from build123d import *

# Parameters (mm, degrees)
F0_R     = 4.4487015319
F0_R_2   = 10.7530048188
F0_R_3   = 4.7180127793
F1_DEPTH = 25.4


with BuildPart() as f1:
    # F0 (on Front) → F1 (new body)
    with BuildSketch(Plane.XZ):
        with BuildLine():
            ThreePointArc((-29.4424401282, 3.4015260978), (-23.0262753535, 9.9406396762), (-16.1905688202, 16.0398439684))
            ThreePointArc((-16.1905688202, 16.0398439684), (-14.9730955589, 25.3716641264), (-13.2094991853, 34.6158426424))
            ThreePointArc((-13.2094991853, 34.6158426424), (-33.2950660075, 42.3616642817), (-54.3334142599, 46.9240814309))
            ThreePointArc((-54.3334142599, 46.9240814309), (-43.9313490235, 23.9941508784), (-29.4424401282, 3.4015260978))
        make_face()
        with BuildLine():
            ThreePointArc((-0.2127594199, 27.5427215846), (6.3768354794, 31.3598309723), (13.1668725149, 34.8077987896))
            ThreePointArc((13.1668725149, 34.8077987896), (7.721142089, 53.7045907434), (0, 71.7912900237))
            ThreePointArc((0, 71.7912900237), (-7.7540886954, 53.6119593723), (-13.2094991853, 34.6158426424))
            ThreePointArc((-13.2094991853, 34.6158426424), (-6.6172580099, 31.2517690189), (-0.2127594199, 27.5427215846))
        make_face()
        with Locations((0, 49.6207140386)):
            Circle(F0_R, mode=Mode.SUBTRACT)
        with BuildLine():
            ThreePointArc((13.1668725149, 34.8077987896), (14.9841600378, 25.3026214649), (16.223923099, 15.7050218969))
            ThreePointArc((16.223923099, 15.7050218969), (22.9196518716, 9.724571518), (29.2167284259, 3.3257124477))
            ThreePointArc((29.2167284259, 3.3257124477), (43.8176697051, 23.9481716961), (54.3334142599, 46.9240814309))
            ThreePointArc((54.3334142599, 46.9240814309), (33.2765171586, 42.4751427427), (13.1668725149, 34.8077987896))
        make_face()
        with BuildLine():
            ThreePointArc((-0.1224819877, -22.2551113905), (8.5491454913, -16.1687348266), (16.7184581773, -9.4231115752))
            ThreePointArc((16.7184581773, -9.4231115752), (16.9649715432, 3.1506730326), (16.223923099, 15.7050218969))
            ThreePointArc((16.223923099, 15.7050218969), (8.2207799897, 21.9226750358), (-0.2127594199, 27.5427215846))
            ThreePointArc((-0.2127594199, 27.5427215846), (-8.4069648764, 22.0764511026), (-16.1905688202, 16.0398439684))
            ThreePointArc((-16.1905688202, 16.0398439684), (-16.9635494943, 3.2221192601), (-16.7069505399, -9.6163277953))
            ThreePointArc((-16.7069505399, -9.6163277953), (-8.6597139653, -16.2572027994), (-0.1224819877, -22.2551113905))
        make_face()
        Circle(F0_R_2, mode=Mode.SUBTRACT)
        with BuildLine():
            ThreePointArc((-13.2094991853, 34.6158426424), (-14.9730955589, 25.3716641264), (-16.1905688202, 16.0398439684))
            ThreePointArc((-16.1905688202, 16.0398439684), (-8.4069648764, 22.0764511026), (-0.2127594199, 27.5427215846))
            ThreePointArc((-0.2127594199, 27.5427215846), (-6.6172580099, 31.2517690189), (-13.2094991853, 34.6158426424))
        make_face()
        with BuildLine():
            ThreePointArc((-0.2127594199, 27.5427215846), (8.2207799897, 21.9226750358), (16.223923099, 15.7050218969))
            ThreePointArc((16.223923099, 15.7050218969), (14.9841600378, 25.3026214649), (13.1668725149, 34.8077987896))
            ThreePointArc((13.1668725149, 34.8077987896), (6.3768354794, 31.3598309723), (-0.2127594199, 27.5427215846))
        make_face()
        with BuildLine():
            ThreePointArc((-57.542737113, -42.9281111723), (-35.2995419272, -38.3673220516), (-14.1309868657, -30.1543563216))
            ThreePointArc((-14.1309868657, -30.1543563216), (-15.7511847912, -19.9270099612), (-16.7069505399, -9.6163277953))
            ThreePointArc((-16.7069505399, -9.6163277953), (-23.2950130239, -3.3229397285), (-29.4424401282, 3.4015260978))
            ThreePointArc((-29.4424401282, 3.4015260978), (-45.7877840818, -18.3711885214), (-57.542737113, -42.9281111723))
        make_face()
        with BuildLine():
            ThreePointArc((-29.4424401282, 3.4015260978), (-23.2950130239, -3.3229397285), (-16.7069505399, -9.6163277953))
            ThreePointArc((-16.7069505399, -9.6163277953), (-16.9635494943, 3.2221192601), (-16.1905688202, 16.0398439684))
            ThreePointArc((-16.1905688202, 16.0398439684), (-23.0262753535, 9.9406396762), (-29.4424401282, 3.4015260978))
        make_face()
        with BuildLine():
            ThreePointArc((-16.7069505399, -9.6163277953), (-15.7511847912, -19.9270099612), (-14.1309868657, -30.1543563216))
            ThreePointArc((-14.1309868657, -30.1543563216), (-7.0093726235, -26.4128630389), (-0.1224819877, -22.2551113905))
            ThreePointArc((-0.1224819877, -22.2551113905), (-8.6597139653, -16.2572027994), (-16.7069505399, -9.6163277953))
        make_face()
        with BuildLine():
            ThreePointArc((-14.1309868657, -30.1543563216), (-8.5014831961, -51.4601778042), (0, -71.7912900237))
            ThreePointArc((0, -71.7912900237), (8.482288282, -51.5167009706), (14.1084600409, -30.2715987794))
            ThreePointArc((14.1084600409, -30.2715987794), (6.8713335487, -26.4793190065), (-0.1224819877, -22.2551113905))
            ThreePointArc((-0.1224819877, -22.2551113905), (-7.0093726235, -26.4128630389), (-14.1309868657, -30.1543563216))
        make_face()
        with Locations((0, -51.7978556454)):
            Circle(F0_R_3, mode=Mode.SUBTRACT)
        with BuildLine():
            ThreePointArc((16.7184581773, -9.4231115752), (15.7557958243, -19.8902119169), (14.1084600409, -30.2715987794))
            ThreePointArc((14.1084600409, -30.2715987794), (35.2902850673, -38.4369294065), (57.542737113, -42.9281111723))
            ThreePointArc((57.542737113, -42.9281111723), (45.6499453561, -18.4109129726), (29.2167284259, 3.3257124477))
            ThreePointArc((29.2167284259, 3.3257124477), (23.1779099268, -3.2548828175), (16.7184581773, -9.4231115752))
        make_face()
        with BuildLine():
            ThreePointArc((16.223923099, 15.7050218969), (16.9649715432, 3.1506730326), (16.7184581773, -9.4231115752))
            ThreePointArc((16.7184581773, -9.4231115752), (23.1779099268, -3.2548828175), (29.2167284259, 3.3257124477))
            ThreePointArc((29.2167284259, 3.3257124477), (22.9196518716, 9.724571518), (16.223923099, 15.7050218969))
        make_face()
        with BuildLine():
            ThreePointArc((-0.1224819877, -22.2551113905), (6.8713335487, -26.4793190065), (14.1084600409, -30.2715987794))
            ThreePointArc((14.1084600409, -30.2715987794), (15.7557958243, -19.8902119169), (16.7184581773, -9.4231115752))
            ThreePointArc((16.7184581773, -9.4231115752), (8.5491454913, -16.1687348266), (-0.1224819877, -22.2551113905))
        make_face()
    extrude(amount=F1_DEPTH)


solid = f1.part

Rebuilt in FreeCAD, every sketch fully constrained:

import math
import FreeCAD as App
import Part
import Sketcher
Q = App.Units.Quantity

doc = App.newDocument("Part")
body = doc.addObject("PartDesign::Body", "Body")

sketch1 = doc.addObject("Sketcher::SketchObject", "Sketch")
body.addObject(sketch1)
sketch1.AttachmentSupport = (doc.XZ_Plane, [""])
sketch1.MapMode = "FlatFace"
sketch1.addGeometry(Part.ArcOfCircle(Part.Circle(App.Vector(-143.1, 0, 0), App.Vector(0, 0, 1), 160.1), math.radians(-26.64), math.radians(-10.9)), False)
sketch1.addGeometry(Part.ArcOfCircle(Part.Circle(App.Vector(73, 90.8, 0), App.Vector(0, 0, 1), 134.7), math.radians(-115.92), math.radians(-96.58)), False)
sketch1.addGeometry(Part.ArcOfCircle(Part.Circle(App.Vector(-73.3, -91.2, 0), App.Vector(0, 0, 1), 139.5), math.radians(20), math.radians(43)), False)
sketch1.addGeometry(Part.ArcOfCircle(Part.Circle(App.Vector(-73.5, 91.5, 0), App.Vector(0, 0, 1), 135.4), math.radians(-41), math.radians(-19)), False)
sketch1.addGeometry(Part.ArcOfCircle(Part.Circle(App.Vector(72.3, -90, 0), App.Vector(0, 0, 1), 138.1), math.radians(97.46), math.radians(115.34)), False)
sketch1.addGeometry(Part.ArcOfCircle(Part.Circle(App.Vector(-143.1, 0, 0), App.Vector(0, 0, 1), 160.1), math.radians(12.56), math.radians(26.64)), False)
sketch1.addGeometry(Part.ArcOfCircle(Part.Circle(App.Vector(143.1, 0, 0), App.Vector(0, 0, 1), 160.1), math.radians(153.36), math.radians(167.51)), False)
sketch1.addGeometry(Part.ArcOfCircle(Part.Circle(App.Vector(-73.3, -91.2, 0), App.Vector(0, 0, 1), 139.5), math.radians(64.48), math.radians(82.19)), False)
sketch1.addGeometry(Part.ArcOfCircle(Part.Circle(App.Vector(73, 90.8, 0), App.Vector(0, 0, 1), 134.7), math.radians(-161), math.radians(-140)), False)
sketch1.addGeometry(Part.ArcOfCircle(Part.Circle(App.Vector(72.3, -90, 0), App.Vector(0, 0, 1), 138.1), math.radians(137), math.radians(160)), False)
sketch1.addGeometry(Part.ArcOfCircle(Part.Circle(App.Vector(-73.5, 91.5, 0), App.Vector(0, 0, 1), 135.4), math.radians(-83.22), math.radians(-63.99)), False)
sketch1.addGeometry(Part.ArcOfCircle(Part.Circle(App.Vector(143.1, 0, 0), App.Vector(0, 0, 1), 160.1), math.radians(-169.15), math.radians(-153.36)), False)
sketch1.addGeometry(Part.Circle(App.Vector(0, -51.8, 0), App.Vector(0, 0, 1), 4.7), False)
sketch1.addGeometry(Part.Circle(App.Vector(0, 0, 0), App.Vector(0, 0, 1), 10.8), False)
sketch1.addGeometry(Part.Circle(App.Vector(0, 49.6, 0), App.Vector(0, 0, 1), 4.4), False)
sketch1.addConstraint(Sketcher.Constraint("Coincident", 0, 2, 1, 1))
sketch1.addConstraint(Sketcher.Constraint("Coincident", 1, 2, 2, 1))
sketch1.addConstraint(Sketcher.Constraint("Coincident", 2, 2, 3, 1))
sketch1.addConstraint(Sketcher.Constraint("Coincident", 3, 2, 4, 1))
sketch1.addConstraint(Sketcher.Constraint("Coincident", 4, 2, 5, 1))
sketch1.addConstraint(Sketcher.Constraint("Coincident", 5, 2, 6, 1))
sketch1.addConstraint(Sketcher.Constraint("Coincident", 6, 2, 7, 1))
sketch1.addConstraint(Sketcher.Constraint("Coincident", 7, 2, 8, 1))
sketch1.addConstraint(Sketcher.Constraint("Coincident", 8, 2, 9, 1))
sketch1.addConstraint(Sketcher.Constraint("Coincident", 9, 2, 10, 1))
sketch1.addConstraint(Sketcher.Constraint("Coincident", 10, 2, 11, 1))
sketch1.addConstraint(Sketcher.Constraint("Coincident", 11, 2, 0, 1))
sketch1.addConstraint(Sketcher.Constraint("Coincident", 13, 3, -1, 1))
sketch1.addConstraint(Sketcher.Constraint("Coincident", 5, 3, 0, 3))
sketch1.addConstraint(Sketcher.Constraint("Coincident", 7, 3, 2, 3))
sketch1.addConstraint(Sketcher.Constraint("Coincident", 8, 3, 1, 3))
sketch1.addConstraint(Sketcher.Constraint("Coincident", 9, 3, 4, 3))
sketch1.addConstraint(Sketcher.Constraint("Coincident", 10, 3, 3, 3))
sketch1.addConstraint(Sketcher.Constraint("Coincident", 11, 3, 6, 3))
sketch1.addConstraint(Sketcher.Constraint("Equal", 0, 5))
sketch1.addConstraint(Sketcher.Constraint("Equal", 5, 6))
sketch1.addConstraint(Sketcher.Constraint("Equal", 2, 7))
sketch1.addConstraint(Sketcher.Constraint("Equal", 1, 8))
sketch1.addConstraint(Sketcher.Constraint("Equal", 4, 9))
sketch1.addConstraint(Sketcher.Constraint("Equal", 3, 10))
sketch1.addConstraint(Sketcher.Constraint("Equal", 6, 11))
sketch1.addConstraint(Sketcher.Constraint("Symmetric", 0, 3, 6, 3, -1, 1))
sketch1.addConstraint(Sketcher.Constraint("Symmetric", 3, 2, 7, 2, -2))
sketch1.addConstraint(Sketcher.Constraint("Symmetric", 1, 2, 9, 2, -2))
sketch1.addConstraint(Sketcher.Constraint("PointOnObject", 0, 3, -1))
sketch1.addConstraint(Sketcher.Constraint("PointOnObject", 12, 3, -2))
sketch1.addConstraint(Sketcher.Constraint("PointOnObject", 14, 3, -2))
sketch1.addConstraint(Sketcher.Constraint("Diameter", 13, Q("21.50601 mm")))
sketch1.addConstraint(Sketcher.Constraint("Radius", 1, Q("134.661069 mm")))
sketch1.addConstraint(Sketcher.Constraint("Diameter", 12, Q("9.436026 mm")))
sketch1.addConstraint(Sketcher.Constraint("Diameter", 14, Q("8.897403 mm")))
sketch1.addConstraint(Sketcher.Constraint("Radius", 0, Q("160.121833 mm")))
sketch1.addConstraint(Sketcher.Constraint("Radius", 2, Q("139.463635 mm")))
sketch1.addConstraint(Sketcher.Constraint("Radius", 3, Q("135.424375 mm")))
sketch1.addConstraint(Sketcher.Constraint("Radius", 4, Q("138.062124 mm")))
sketch1.addConstraint(Sketcher.Constraint("DistanceY", 0, 2, -1, 1, Q("30.271599 mm")))
sketch1.addConstraint(Sketcher.Constraint("DistanceY", -1, 1, 4, 2, Q("34.807799 mm")))
sketch1.addConstraint(Sketcher.Constraint("DistanceX", 6, 2, -1, 1, Q("13.209499 mm")))
sketch1.addConstraint(Sketcher.Constraint("DistanceX", 1, 3, 6, 3, Q("70.162898 mm")))
sketch1.addConstraint(Sketcher.Constraint("DistanceY", 4, 3, 1, 2, Q("47.0414 mm")))
sketch1.addConstraint(Sketcher.Constraint("DistanceY", 2, 2, 14, 3, Q("46.295002 mm")))
sketch1.addConstraint(Sketcher.Constraint("DistanceY", 12, 3, 10, 2, Q("21.643499 mm")))
pad1 = doc.addObject("PartDesign::Pad", "Pad")
body.addObject(pad1)
pad1.Profile = sketch1
pad1.Length = Q("1 in")

doc.recompute()
